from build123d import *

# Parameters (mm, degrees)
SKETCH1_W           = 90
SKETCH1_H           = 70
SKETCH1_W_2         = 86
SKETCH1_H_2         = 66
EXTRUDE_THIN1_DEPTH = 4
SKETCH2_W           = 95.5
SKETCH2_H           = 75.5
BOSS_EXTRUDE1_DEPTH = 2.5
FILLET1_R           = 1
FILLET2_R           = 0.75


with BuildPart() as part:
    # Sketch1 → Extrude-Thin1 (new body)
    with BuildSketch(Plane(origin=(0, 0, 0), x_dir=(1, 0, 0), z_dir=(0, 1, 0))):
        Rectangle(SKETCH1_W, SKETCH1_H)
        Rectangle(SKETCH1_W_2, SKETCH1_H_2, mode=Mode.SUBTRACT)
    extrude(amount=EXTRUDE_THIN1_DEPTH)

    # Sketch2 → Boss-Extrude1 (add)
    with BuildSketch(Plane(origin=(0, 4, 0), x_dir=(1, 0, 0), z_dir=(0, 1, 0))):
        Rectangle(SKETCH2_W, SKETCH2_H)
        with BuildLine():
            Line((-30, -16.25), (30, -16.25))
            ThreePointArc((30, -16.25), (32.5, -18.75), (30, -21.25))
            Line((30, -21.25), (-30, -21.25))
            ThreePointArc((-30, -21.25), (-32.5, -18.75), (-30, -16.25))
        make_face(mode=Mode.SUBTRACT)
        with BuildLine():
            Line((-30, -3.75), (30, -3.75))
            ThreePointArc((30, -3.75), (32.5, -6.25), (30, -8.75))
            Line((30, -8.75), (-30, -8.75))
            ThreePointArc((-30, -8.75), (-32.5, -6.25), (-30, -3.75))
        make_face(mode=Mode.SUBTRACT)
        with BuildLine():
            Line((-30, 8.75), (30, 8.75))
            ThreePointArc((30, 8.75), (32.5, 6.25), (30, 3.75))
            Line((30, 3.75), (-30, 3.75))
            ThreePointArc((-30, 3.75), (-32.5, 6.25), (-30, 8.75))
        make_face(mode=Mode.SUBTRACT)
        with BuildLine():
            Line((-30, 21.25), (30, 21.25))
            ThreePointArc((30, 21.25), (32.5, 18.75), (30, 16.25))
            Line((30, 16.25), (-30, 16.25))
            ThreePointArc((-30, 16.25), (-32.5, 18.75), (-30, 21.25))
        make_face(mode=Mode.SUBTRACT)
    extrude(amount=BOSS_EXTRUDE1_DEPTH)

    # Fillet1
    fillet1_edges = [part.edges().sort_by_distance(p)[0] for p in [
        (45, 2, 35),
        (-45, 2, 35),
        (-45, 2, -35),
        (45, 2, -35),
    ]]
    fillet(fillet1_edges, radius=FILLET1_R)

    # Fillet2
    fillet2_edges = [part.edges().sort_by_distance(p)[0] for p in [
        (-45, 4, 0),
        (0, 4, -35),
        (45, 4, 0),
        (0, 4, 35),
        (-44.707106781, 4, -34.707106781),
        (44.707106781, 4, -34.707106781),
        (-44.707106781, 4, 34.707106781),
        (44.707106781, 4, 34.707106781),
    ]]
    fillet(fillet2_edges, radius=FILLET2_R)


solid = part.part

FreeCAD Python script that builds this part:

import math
import FreeCAD as App
import Part
import Sketcher

V = App.Vector
Q = App.Units.Quantity


def edges_at(feature, points):
    """Names of the edges that pass closest to the given points."""
    edges = feature.Shape.Edges
    near = lambda p: min(range(len(edges)), key=lambda i: edges[i].distToShape(Part.Vertex(*p))[0])
    return sorted({f"Edge{near(p) + 1}" for p in points})


def add_polygon(sketch, points):
    """Adds a closed chain of lines whose ends are joined by coincident constraints."""
    first, n = sketch.GeometryCount, len(points)
    for a, b in zip(points, points[1:] + points[:1]):
        sketch.addGeometry(Part.LineSegment(App.Vector(*a, 0), App.Vector(*b, 0)), False)
    for i in range(n):
        sketch.addConstraint(Sketcher.Constraint("Coincident", first + i, 2, first + (i + 1) % n, 1))

doc = App.newDocument("Part")
params = doc.addObject("Spreadsheet::Sheet", "Params")
for row, (alias, value) in enumerate([
    ("sketch1_width", "90 mm"),
    ("sketch1_width2", "86 mm"),
    ("sketch1_height", "70 mm"),
    ("sketch1_height2", "66 mm"),
    ("pad1_length", "4 mm"),
    ("sketch2_radius", "2.5 mm"),
    ("sketch2_width", "60 mm"),
    ("sketch2_width2", "95.5 mm"),
    ("sketch2_height", "75.5 mm"),
    ("pad2_length", "2.5 mm"),
    ("fillet_radius", "1 mm"),
    ("fillet2_radius", "0.75 mm"),
], start=1):
    params.set(f"A{row}", alias)
    params.set(f"B{row}", "=" + value)
    params.setAlias(f"B{row}", alias)

body = doc.addObject("PartDesign::Body", "Body")

# Sketch on XZ plane
sketch1 = body.newObject("Sketcher::SketchObject", "Sketch")
sketch1.AttachmentSupport = (doc.getObject("XZ_Plane"), [""])
sketch1.MapMode = "FlatFace"
add_polygon(sketch1, [(-45, -35), (-45, 35), (45, 35), (45, -35)])  # lines 0-3
add_polygon(sketch1, [(43, 33), (-43, 33), (-43, -33), (43, -33)])  # lines 4-7
sketch1.addConstraint([
    Sketcher.Constraint("Vertical", 0),
    Sketcher.Constraint("Horizontal", 1),
    Sketcher.Constraint("Vertical", 2),
    Sketcher.Constraint("Horizontal", 3),
    Sketcher.Constraint("Horizontal", 4),
    Sketcher.Constraint("Vertical", 5),
    Sketcher.Constraint("Horizontal", 6),
    Sketcher.Constraint("Vertical", 7),
    Sketcher.Constraint("Symmetric", 0, 2, 2, 2, -1, 1),
    Sketcher.Constraint("Symmetric", 4, 2, 6, 2, -1, 1),
    Sketcher.Constraint("DistanceX", 1, 1, 1, 2, Q("90 mm")),
    Sketcher.Constraint("DistanceX", 4, 2, 4, 1, Q("86 mm")),
    Sketcher.Constraint("DistanceY", 0, 1, 0, 2, Q("70 mm")),
    Sketcher.Constraint("DistanceY", 5, 2, 5, 1, Q("66 mm")),
])
sketch1.setExpression("Constraints[18]", "Params.sketch1_width")
sketch1.setExpression("Constraints[19]", "Params.sketch1_width2")
sketch1.setExpression("Constraints[20]", "Params.sketch1_height")
sketch1.setExpression("Constraints[21]", "Params.sketch1_height2")
pad1 = body.newObject("PartDesign::Pad", "Pad")
pad1.Profile = sketch1
pad1.setExpression("Length", "Params.pad1_length")
pad1.Reversed = True

# Sketch on XZ plane
sketch2 = body.newObject("Sketcher::SketchObject", "Sketch001")
sketch2.AttachmentSupport = (doc.getObject("XZ_Plane"), [""])
sketch2.MapMode = "FlatFace"
sketch2.AttachmentOffset = App.Placement(V(0, 0, -4), App.Rotation())
add_polygon(sketch2, [(-47.8, -37.8), (-47.8, 37.8), (47.8, 37.8), (47.8, -37.8)])  # lines 0-3
sketch2.addGeometry(Part.ArcOfCircle(Part.Circle(V(-30, 18.8, 0), V(0, 0, 1), 2.5), math.radians(90), math.radians(270)), False)  # 4
sketch2.addGeometry(Part.LineSegment(V(-30, 16.2, 0), V(30, 16.2, 0)), False)  # 5
sketch2.addGeometry(Part.ArcOfCircle(Part.Circle(V(30, 18.8, 0), V(0, 0, 1), 2.5), math.radians(-90), math.radians(90)), False)  # 6
sketch2.addGeometry(Part.LineSegment(V(30, 21.2, 0), V(-30, 21.2, 0)), False)  # 7
sketch2.addGeometry(Part.ArcOfCircle(Part.Circle(V(-30, 6.2, 0), V(0, 0, 1), 2.5), math.radians(90), math.radians(270)), False)  # 8
sketch2.addGeometry(Part.LineSegment(V(-30, 3.8, 0), V(30, 3.8, 0)), False)  # 9
sketch2.addGeometry(Part.ArcOfCircle(Part.Circle(V(30, 6.2, 0), V(0, 0, 1), 2.5), math.radians(-90), math.radians(90)), False)  # 10
sketch2.addGeometry(Part.LineSegment(V(30, 8.8, 0), V(-30, 8.8, 0)), False)  # 11
sketch2.addGeometry(Part.ArcOfCircle(Part.Circle(V(-30, -6.2, 0), V(0, 0, 1), 2.5), math.radians(90), math.radians(270)), False)  # 12
sketch2.addGeometry(Part.LineSegment(V(-30, -8.8, 0), V(30, -8.8, 0)), False)  # 13
sketch2.addGeometry(Part.ArcOfCircle(Part.Circle(V(30, -6.2, 0), V(0, 0, 1), 2.5), math.radians(-90), math.radians(90)), False)  # 14
sketch2.addGeometry(Part.LineSegment(V(30, -3.8, 0), V(-30, -3.8, 0)), False)  # 15
sketch2.addGeometry(Part.ArcOfCircle(Part.Circle(V(-30, -18.8, 0), V(0, 0, 1), 2.5), math.radians(90), math.radians(270)), False)  # 16
sketch2.addGeometry(Part.LineSegment(V(-30, -21.2, 0), V(30, -21.2, 0)), False)  # 17
sketch2.addGeometry(Part.ArcOfCircle(Part.Circle(V(30, -18.8, 0), V(0, 0, 1), 2.5), math.radians(-90), math.radians(90)), False)  # 18
sketch2.addGeometry(Part.LineSegment(V(30, -16.2, 0), V(-30, -16.2, 0)), False)  # 19
sketch2.addConstraint([
    Sketcher.Constraint("Tangent", 4, 2, 5, 1),
    Sketcher.Constraint("Tangent", 5, 2, 6, 1),
    Sketcher.Constraint("Tangent", 6, 2, 7, 1),
    Sketcher.Constraint("Tangent", 7, 2, 4, 1),
    Sketcher.Constraint("Tangent", 8, 2, 9, 1),
    Sketcher.Constraint("Tangent", 9, 2, 10, 1),
    Sketcher.Constraint("Tangent", 10, 2, 11, 1),
    Sketcher.Constraint("Tangent", 11, 2, 8, 1),
    Sketcher.Constraint("Tangent", 12, 2, 13, 1),
    Sketcher.Constraint("Tangent", 13, 2, 14, 1),
    Sketcher.Constraint("Tangent", 14, 2, 15, 1),
    Sketcher.Constraint("Tangent", 15, 2, 12, 1),
    Sketcher.Constraint("Tangent", 16, 2, 17, 1),
    Sketcher.Constraint("Tangent", 17, 2, 18, 1),
    Sketcher.Constraint("Tangent", 18, 2, 19, 1),
    Sketcher.Constraint("Tangent", 19, 2, 16, 1),
    Sketcher.Constraint("Vertical", 0),
    Sketcher.Constraint("Horizontal", 1),
    Sketcher.Constraint("Vertical", 2),
    Sketcher.Constraint("Horizontal", 3),
    Sketcher.Constraint("Horizontal", 5),
    Sketcher.Constraint("Horizontal", 7),
    Sketcher.Constraint("Horizontal", 9),
    Sketcher.Constraint("Horizontal", 11),
    Sketcher.Constraint("Horizontal", 13),
    Sketcher.Constraint("Horizontal", 15),
    Sketcher.Constraint("Horizontal", 17),
    Sketcher.Constraint("Horizontal", 19),
    Sketcher.Constraint("Equal", 6, 8),
    Sketcher.Constraint("Equal", 10, 12),
    Sketcher.Constraint("Equal", 14, 16),
    Sketcher.Constraint("Symmetric", 10, 3, 12, 3, -1, 1),
    Sketcher.Constraint("Symmetric", 6, 3, 16, 3, -1, 1),
    Sketcher.Constraint("Symmetric", 0, 2, 2, 2, -1, 1),
    Sketcher.Constraint("Vertical", 4, 3, 8, 3),
    Sketcher.Constraint("Vertical", 6, 3, 10, 3),
    Sketcher.Constraint("Vertical", 8, 3, 12, 3),
    Sketcher.Constraint("Vertical", 10, 3, 14, 3),
    Sketcher.Constraint("Vertical", 14, 3, 18, 3),
    Sketcher.Constraint("Radius", 4, Q("2.5 mm")),
    Sketcher.Constraint("DistanceX", 5, 1, 5, 2, Q("60 mm")),
    Sketcher.Constraint("DistanceX", 1, 1, 1, 2, Q("95.5 mm")),
    Sketcher.Constraint("DistanceY", 0, 1, 0, 2, Q("75.5 mm")),
    Sketcher.Constraint("DistanceY", 12, 3, 4, 3, Q("25 mm")),
    Sketcher.Constraint("DistanceY", 4, 3, 0, 2, Q("19 mm")),
])
sketch2.setExpression("Constraints[43]", "Params.sketch2_radius")
sketch2.setExpression("Constraints[44]", "Params.sketch2_width")
sketch2.setExpression("Constraints[45]", "Params.sketch2_width2")
sketch2.setExpression("Constraints[46]", "Params.sketch2_height")
pad2 = body.newObject("PartDesign::Pad", "Pad001")
pad2.Profile = sketch2
pad2.setExpression("Length", "Params.pad2_length")
pad2.Reversed = True
doc.recompute()

fillet = body.newObject("PartDesign::Fillet", "Fillet")
fillet.Base = (pad2, edges_at(pad2, [
    (45, 2, 35),
    (-45, 2, 35),
    (-45, 2, -35),
    (45, 2, -35),
]))
fillet.setExpression("Radius", "Params.fillet_radius")
doc.recompute()

fillet2 = body.newObject("PartDesign::Fillet", "Fillet001")
fillet2.Base = (fillet, edges_at(fillet, [
    (-45, 4, 0),
    (0, 4, -35),
    (45, 4, 0),
    (0, 4, 35),
    (-44.707, 4, -34.707),
    (44.707, 4, -34.707),
    (-44.707, 4, 34.707),
    (44.707, 4, 34.707),
]))
fillet2.setExpression("Radius", "Params.fillet2_radius")

doc.recompute()
